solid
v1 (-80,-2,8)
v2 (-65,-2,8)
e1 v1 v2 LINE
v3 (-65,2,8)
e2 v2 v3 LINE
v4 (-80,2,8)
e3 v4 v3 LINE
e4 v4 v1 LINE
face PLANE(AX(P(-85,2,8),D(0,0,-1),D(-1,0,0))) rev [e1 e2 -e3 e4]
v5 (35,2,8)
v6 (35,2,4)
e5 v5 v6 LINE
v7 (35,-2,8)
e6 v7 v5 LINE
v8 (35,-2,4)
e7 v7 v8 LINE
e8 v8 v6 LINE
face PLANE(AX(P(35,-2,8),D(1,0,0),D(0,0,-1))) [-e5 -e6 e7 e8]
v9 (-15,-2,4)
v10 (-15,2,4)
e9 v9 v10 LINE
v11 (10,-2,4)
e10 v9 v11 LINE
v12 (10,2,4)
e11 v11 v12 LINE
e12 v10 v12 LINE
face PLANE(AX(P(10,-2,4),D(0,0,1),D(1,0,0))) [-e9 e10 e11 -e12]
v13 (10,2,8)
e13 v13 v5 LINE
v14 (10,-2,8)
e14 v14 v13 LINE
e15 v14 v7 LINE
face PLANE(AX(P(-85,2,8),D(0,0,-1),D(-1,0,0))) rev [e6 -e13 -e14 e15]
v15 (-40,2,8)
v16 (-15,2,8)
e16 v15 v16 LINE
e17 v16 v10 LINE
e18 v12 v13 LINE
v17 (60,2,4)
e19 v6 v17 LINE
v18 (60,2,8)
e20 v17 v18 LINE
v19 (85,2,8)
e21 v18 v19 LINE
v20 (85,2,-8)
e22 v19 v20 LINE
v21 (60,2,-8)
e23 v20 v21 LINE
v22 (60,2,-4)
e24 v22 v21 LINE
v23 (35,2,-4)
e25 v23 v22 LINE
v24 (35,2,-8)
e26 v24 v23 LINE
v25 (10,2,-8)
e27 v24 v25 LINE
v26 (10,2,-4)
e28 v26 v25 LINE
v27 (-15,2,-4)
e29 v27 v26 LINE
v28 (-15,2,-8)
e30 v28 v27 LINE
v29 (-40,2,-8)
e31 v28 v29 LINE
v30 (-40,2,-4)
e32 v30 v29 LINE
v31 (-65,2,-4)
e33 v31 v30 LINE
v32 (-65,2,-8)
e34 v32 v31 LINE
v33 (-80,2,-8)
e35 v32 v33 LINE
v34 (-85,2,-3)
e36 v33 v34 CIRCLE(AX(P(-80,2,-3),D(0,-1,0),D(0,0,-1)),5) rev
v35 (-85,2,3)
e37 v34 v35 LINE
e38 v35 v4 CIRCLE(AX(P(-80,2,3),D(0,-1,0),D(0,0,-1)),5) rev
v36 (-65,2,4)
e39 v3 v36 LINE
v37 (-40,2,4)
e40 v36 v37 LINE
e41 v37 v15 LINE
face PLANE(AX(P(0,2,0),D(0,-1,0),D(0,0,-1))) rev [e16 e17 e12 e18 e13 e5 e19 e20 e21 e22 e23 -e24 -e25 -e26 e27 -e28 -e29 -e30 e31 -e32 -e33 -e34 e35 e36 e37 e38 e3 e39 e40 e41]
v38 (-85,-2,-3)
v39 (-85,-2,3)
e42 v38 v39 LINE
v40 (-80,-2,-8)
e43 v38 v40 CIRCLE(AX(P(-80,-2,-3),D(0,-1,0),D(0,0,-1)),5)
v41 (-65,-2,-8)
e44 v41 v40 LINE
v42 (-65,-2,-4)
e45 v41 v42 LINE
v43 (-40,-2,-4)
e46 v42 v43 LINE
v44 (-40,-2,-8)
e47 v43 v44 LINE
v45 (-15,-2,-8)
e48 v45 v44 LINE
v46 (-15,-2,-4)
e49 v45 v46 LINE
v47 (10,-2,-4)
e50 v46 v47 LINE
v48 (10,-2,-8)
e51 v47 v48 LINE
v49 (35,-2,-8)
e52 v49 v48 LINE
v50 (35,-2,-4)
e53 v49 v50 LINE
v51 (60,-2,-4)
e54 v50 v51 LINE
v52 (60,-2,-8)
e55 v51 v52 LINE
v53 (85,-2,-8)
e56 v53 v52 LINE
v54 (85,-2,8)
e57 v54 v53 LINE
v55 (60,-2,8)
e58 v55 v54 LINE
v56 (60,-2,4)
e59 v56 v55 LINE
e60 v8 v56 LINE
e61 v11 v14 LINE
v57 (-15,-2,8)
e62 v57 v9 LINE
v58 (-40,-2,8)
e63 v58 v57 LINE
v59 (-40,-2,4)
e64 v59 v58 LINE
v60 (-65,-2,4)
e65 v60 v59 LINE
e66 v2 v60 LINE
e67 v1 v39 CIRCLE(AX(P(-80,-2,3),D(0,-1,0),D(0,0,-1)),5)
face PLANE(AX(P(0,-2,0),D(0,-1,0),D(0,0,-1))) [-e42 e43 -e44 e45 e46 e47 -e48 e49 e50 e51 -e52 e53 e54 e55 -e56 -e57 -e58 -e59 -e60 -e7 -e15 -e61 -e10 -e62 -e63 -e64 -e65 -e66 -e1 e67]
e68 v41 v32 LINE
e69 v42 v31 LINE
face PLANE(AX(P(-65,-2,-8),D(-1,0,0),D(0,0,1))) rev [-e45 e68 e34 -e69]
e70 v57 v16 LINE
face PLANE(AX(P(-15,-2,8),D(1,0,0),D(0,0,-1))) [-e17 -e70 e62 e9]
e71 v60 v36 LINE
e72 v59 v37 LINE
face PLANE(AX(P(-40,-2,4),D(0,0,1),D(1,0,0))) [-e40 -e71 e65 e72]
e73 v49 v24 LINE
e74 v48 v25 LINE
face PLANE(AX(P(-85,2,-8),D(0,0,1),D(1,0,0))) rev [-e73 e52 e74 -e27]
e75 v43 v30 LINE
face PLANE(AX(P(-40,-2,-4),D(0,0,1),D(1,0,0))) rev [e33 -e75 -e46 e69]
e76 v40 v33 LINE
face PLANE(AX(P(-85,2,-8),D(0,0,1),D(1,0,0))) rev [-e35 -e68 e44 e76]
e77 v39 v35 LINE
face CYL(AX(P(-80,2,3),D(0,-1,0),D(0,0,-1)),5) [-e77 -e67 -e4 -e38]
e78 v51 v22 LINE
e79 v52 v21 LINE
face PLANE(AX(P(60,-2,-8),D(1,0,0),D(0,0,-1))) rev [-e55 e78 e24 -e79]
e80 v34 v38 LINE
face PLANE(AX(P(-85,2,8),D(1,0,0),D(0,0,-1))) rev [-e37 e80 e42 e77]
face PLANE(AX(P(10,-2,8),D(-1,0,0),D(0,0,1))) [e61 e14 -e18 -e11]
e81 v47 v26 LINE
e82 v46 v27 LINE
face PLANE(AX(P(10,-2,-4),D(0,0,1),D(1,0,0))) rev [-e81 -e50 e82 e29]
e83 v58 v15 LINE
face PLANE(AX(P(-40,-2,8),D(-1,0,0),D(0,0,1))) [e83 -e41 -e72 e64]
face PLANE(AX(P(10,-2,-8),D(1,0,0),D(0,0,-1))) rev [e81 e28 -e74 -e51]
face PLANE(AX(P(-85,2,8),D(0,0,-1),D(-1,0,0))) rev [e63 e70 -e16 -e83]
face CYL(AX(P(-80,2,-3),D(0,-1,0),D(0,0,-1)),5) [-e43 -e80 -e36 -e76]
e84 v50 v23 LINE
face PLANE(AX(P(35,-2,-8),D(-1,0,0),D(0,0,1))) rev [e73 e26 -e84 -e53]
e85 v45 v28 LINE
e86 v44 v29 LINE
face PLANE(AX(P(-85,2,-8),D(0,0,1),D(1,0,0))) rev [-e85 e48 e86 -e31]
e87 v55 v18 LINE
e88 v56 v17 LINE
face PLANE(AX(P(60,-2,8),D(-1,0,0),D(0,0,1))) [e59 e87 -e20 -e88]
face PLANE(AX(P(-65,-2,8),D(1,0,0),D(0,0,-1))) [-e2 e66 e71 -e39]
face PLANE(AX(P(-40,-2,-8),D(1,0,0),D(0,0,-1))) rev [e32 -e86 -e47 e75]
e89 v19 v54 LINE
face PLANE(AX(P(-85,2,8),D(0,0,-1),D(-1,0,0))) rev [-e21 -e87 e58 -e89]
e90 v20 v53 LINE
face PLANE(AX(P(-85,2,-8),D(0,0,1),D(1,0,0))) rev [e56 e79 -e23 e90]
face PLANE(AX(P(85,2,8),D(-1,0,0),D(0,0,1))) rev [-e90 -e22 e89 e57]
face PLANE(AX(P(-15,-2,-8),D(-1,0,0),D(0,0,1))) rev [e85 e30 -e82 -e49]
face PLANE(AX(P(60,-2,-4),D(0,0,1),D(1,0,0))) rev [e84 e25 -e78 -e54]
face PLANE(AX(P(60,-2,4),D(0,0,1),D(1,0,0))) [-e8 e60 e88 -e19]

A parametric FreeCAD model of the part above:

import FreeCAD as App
import Part
import Sketcher


def edges_at(feature, points):
    """Names of the edges that pass closest to the given points."""
    edges = feature.Shape.Edges
    near = lambda p: min(range(len(edges)), key=lambda i: edges[i].distToShape(Part.Vertex(*p))[0])
    return sorted({f"Edge{near(p) + 1}" for p in points})


def add_polygon(sketch, points):
    """Adds a closed chain of lines whose ends are joined by coincident constraints."""
    first, n = sketch.GeometryCount, len(points)
    for a, b in zip(points, points[1:] + points[:1]):
        sketch.addGeometry(Part.LineSegment(App.Vector(*a, 0), App.Vector(*b, 0)), False)
    for i in range(n):
        sketch.addConstraint(Sketcher.Constraint("Coincident", first + i, 2, first + (i + 1) % n, 1))

doc = App.newDocument("Part")
body = doc.addObject("PartDesign::Body", "Body")

sketch1 = body.newObject("Sketcher::SketchObject", "Sketch")
sketch1.AttachmentSupport = (doc.getObject("XZ_Plane"), [""])
sketch1.MapMode = "FlatFace"
add_polygon(sketch1, [(-85, -8), (-85, 8), (85, 8), (85, -8)])
sketch1.addConstraint([
    Sketcher.Constraint("Vertical", 0),
    Sketcher.Constraint("Horizontal", 1),
    Sketcher.Constraint("Vertical", 2),
    Sketcher.Constraint("Horizontal", 3),
    Sketcher.Constraint("Symmetric", 0, 2, 2, 2, -1, 1),
    Sketcher.Constraint("DistanceX", 1, 1, 1, 2, 170.0),
    Sketcher.Constraint("DistanceY", 0, 1, 0, 2, 16.0),
])
pad1 = body.newObject("PartDesign::Pad", "Pad")
pad1.Profile = sketch1
pad1.Length = 4
pad1.Midplane = True

sketch2 = body.newObject("Sketcher::SketchObject", "Sketch001")
sketch2.AttachmentSupport = (doc.getObject("XZ_Plane"), [""])
sketch2.MapMode = "FlatFace"
sketch2.AttachmentOffset = App.Placement(App.Vector(0, 0, -2), App.Rotation())
add_polygon(sketch2, [(35, -8), (35, -4), (60, -4), (60, -8)])
add_polygon(sketch2, [(-15, -8), (-15, -4), (10, -4), (10, -8)])
add_polygon(sketch2, [(-65, -8), (-65, -4), (-40, -4), (-40, -8)])
add_polygon(sketch2, [(-115, -8), (-115, -4), (-90, -4), (-90, -8)])
add_polygon(sketch2, [(-165, -8), (-165, -4), (-140, -4), (-140, -8)])
add_polygon(sketch2, [(-215, -8), (-215, -4), (-190, -4), (-190, -8)])
add_polygon(sketch2, [(-265, -8), (-265, -4), (-240, -4), (-240, -8)])
add_polygon(sketch2, [(-315, -8), (-315, -4), (-290, -4), (-290, -8)])
add_polygon(sketch2, [(-365, -8), (-365, -4), (-340, -4), (-340, -8)])
add_polygon(sketch2, [(-415, -8), (-415, -4), (-390, -4), (-390, -8)])
sketch2.addConstraint([
    Sketcher.Constraint("Vertical", 0),
    Sketcher.Constraint("Horizontal", 1),
    Sketcher.Constraint("Vertical", 2),
    Sketcher.Constraint("Horizontal", 3),
    Sketcher.Constraint("Vertical", 4),
    Sketcher.Constraint("Horizontal", 5),
    Sketcher.Constraint("Vertical", 6),
    Sketcher.Constraint("Horizontal", 7),
    Sketcher.Constraint("Vertical", 8),
    Sketcher.Constraint("Horizontal", 9),
    Sketcher.Constraint("Vertical", 10),
    Sketcher.Constraint("Horizontal", 11),
    Sketcher.Constraint("Vertical", 12),
    Sketcher.Constraint("Horizontal", 13),
    Sketcher.Constraint("Vertical", 14),
    Sketcher.Constraint("Horizontal", 15),
    Sketcher.Constraint("Vertical", 16),
    Sketcher.Constraint("Horizontal", 17),
    Sketcher.Constraint("Vertical", 18),
    Sketcher.Constraint("Horizontal", 19),
    Sketcher.Constraint("Vertical", 20),
    Sketcher.Constraint("Horizontal", 21),
    Sketcher.Constraint("Vertical", 22),
    Sketcher.Constraint("Horizontal", 23),
    Sketcher.Constraint("Vertical", 24),
    Sketcher.Constraint("Horizontal", 25),
    Sketcher.Constraint("Vertical", 26),
    Sketcher.Constraint("Horizontal", 27),
    Sketcher.Constraint("Vertical", 28),
    Sketcher.Constraint("Horizontal", 29),
    Sketcher.Constraint("Vertical", 30),
    Sketcher.Constraint("Horizontal", 31),
    Sketcher.Constraint("Vertical", 32),
    Sketcher.Constraint("Horizontal", 33),
    Sketcher.Constraint("Vertical", 34),
    Sketcher.Constraint("Horizontal", 35),
    Sketcher.Constraint("Vertical", 36),
    Sketcher.Constraint("Horizontal", 37),
    Sketcher.Constraint("Vertical", 38),
    Sketcher.Constraint("Horizontal", 39),
    Sketcher.Constraint("Horizontal", 1, 2, 4, 2),
    Sketcher.Constraint("Horizontal", 3, 2, 6, 2),
    Sketcher.Constraint("Horizontal", 5, 2, 8, 2),
    Sketcher.Constraint("Horizontal", 7, 2, 10, 2),
    Sketcher.Constraint("Horizontal", 9, 2, 12, 2),
    Sketcher.Constraint("Horizontal", 11, 2, 14, 2),
    Sketcher.Constraint("Horizontal", 13, 2, 16, 2),
    Sketcher.Constraint("Horizontal", 15, 2, 18, 2),
    Sketcher.Constraint("Horizontal", 17, 2, 20, 2),
    Sketcher.Constraint("Horizontal", 19, 2, 22, 2),
    Sketcher.Constraint("Horizontal", 21, 2, 24, 2),
    Sketcher.Constraint("Horizontal", 23, 2, 26, 2),
    Sketcher.Constraint("Horizontal", 25, 2, 28, 2),
    Sketcher.Constraint("Horizontal", 27, 2, 30, 2),
    Sketcher.Constraint("Horizontal", 29, 2, 32, 2),
    Sketcher.Constraint("Horizontal", 31, 2, 34, 2),
    Sketcher.Constraint("Horizontal", 33, 2, 36, 2),
    Sketcher.Constraint("Horizontal", 35, 2, 38, 2),
    Sketcher.Constraint("Equal", 3, 5),
    Sketcher.Constraint("Equal", 7, 9),
    Sketcher.Constraint("Equal", 11, 13),
    Sketcher.Constraint("Equal", 15, 17),
    Sketcher.Constraint("Equal", 19, 21),
    Sketcher.Constraint("Equal", 23, 25),
    Sketcher.Constraint("Equal", 27, 29),
    Sketcher.Constraint("Equal", 31, 33),
    Sketcher.Constraint("Equal", 35, 37),
    Sketcher.Constraint("DistanceX", 1, 1, 1, 2, 25.0),
    Sketcher.Constraint("DistanceY", 0, 1, 0, 2, 4.0),
    Sketcher.Constraint("DistanceX", -1, 1, 0, 2, 35.0),
    Sketcher.Constraint("DistanceY", 0, 2, -1, 1, 4.0),
    Sketcher.Constraint("DistanceX", 4, 2, -1, 1, 15.0),
    Sketcher.Constraint("DistanceX", 8, 2, -1, 1, 65.0),
    Sketcher.Constraint("DistanceX", 12, 2, -1, 1, 115.0),
    Sketcher.Constraint("DistanceX", 16, 2, -1, 1, 165.0),
    Sketcher.Constraint("DistanceX", 20, 2, -1, 1, 215.0),
    Sketcher.Constraint("DistanceX", 24, 2, -1, 1, 265.0),
    Sketcher.Constraint("DistanceX", 28, 2, -1, 1, 315.0),
    Sketcher.Constraint("DistanceX", 32, 2, -1, 1, 365.0),
    Sketcher.Constraint("DistanceX", 36, 2, -1, 1, 415.0),
])
pocket1 = body.newObject("PartDesign::Pocket", "Pocket")
pocket1.Profile = sketch2
pocket1.Type = "ThroughAll"
pocket1.Reversed = True
doc.recompute()

mirrored = body.newObject("PartDesign::Mirrored", "Mirrored")
mirrored.Originals = [pocket1]
mirrored.MirrorPlane = (doc.getObject("XY_Plane"), [""])
body.Tip = mirrored
doc.recompute()

fillet = body.newObject("PartDesign::Fillet", "Fillet")
fillet.Base = (mirrored, edges_at(mirrored, [(-85, 0, 8), (-85, 0, -8)]))
fillet.Radius = 5

doc.recompute()
